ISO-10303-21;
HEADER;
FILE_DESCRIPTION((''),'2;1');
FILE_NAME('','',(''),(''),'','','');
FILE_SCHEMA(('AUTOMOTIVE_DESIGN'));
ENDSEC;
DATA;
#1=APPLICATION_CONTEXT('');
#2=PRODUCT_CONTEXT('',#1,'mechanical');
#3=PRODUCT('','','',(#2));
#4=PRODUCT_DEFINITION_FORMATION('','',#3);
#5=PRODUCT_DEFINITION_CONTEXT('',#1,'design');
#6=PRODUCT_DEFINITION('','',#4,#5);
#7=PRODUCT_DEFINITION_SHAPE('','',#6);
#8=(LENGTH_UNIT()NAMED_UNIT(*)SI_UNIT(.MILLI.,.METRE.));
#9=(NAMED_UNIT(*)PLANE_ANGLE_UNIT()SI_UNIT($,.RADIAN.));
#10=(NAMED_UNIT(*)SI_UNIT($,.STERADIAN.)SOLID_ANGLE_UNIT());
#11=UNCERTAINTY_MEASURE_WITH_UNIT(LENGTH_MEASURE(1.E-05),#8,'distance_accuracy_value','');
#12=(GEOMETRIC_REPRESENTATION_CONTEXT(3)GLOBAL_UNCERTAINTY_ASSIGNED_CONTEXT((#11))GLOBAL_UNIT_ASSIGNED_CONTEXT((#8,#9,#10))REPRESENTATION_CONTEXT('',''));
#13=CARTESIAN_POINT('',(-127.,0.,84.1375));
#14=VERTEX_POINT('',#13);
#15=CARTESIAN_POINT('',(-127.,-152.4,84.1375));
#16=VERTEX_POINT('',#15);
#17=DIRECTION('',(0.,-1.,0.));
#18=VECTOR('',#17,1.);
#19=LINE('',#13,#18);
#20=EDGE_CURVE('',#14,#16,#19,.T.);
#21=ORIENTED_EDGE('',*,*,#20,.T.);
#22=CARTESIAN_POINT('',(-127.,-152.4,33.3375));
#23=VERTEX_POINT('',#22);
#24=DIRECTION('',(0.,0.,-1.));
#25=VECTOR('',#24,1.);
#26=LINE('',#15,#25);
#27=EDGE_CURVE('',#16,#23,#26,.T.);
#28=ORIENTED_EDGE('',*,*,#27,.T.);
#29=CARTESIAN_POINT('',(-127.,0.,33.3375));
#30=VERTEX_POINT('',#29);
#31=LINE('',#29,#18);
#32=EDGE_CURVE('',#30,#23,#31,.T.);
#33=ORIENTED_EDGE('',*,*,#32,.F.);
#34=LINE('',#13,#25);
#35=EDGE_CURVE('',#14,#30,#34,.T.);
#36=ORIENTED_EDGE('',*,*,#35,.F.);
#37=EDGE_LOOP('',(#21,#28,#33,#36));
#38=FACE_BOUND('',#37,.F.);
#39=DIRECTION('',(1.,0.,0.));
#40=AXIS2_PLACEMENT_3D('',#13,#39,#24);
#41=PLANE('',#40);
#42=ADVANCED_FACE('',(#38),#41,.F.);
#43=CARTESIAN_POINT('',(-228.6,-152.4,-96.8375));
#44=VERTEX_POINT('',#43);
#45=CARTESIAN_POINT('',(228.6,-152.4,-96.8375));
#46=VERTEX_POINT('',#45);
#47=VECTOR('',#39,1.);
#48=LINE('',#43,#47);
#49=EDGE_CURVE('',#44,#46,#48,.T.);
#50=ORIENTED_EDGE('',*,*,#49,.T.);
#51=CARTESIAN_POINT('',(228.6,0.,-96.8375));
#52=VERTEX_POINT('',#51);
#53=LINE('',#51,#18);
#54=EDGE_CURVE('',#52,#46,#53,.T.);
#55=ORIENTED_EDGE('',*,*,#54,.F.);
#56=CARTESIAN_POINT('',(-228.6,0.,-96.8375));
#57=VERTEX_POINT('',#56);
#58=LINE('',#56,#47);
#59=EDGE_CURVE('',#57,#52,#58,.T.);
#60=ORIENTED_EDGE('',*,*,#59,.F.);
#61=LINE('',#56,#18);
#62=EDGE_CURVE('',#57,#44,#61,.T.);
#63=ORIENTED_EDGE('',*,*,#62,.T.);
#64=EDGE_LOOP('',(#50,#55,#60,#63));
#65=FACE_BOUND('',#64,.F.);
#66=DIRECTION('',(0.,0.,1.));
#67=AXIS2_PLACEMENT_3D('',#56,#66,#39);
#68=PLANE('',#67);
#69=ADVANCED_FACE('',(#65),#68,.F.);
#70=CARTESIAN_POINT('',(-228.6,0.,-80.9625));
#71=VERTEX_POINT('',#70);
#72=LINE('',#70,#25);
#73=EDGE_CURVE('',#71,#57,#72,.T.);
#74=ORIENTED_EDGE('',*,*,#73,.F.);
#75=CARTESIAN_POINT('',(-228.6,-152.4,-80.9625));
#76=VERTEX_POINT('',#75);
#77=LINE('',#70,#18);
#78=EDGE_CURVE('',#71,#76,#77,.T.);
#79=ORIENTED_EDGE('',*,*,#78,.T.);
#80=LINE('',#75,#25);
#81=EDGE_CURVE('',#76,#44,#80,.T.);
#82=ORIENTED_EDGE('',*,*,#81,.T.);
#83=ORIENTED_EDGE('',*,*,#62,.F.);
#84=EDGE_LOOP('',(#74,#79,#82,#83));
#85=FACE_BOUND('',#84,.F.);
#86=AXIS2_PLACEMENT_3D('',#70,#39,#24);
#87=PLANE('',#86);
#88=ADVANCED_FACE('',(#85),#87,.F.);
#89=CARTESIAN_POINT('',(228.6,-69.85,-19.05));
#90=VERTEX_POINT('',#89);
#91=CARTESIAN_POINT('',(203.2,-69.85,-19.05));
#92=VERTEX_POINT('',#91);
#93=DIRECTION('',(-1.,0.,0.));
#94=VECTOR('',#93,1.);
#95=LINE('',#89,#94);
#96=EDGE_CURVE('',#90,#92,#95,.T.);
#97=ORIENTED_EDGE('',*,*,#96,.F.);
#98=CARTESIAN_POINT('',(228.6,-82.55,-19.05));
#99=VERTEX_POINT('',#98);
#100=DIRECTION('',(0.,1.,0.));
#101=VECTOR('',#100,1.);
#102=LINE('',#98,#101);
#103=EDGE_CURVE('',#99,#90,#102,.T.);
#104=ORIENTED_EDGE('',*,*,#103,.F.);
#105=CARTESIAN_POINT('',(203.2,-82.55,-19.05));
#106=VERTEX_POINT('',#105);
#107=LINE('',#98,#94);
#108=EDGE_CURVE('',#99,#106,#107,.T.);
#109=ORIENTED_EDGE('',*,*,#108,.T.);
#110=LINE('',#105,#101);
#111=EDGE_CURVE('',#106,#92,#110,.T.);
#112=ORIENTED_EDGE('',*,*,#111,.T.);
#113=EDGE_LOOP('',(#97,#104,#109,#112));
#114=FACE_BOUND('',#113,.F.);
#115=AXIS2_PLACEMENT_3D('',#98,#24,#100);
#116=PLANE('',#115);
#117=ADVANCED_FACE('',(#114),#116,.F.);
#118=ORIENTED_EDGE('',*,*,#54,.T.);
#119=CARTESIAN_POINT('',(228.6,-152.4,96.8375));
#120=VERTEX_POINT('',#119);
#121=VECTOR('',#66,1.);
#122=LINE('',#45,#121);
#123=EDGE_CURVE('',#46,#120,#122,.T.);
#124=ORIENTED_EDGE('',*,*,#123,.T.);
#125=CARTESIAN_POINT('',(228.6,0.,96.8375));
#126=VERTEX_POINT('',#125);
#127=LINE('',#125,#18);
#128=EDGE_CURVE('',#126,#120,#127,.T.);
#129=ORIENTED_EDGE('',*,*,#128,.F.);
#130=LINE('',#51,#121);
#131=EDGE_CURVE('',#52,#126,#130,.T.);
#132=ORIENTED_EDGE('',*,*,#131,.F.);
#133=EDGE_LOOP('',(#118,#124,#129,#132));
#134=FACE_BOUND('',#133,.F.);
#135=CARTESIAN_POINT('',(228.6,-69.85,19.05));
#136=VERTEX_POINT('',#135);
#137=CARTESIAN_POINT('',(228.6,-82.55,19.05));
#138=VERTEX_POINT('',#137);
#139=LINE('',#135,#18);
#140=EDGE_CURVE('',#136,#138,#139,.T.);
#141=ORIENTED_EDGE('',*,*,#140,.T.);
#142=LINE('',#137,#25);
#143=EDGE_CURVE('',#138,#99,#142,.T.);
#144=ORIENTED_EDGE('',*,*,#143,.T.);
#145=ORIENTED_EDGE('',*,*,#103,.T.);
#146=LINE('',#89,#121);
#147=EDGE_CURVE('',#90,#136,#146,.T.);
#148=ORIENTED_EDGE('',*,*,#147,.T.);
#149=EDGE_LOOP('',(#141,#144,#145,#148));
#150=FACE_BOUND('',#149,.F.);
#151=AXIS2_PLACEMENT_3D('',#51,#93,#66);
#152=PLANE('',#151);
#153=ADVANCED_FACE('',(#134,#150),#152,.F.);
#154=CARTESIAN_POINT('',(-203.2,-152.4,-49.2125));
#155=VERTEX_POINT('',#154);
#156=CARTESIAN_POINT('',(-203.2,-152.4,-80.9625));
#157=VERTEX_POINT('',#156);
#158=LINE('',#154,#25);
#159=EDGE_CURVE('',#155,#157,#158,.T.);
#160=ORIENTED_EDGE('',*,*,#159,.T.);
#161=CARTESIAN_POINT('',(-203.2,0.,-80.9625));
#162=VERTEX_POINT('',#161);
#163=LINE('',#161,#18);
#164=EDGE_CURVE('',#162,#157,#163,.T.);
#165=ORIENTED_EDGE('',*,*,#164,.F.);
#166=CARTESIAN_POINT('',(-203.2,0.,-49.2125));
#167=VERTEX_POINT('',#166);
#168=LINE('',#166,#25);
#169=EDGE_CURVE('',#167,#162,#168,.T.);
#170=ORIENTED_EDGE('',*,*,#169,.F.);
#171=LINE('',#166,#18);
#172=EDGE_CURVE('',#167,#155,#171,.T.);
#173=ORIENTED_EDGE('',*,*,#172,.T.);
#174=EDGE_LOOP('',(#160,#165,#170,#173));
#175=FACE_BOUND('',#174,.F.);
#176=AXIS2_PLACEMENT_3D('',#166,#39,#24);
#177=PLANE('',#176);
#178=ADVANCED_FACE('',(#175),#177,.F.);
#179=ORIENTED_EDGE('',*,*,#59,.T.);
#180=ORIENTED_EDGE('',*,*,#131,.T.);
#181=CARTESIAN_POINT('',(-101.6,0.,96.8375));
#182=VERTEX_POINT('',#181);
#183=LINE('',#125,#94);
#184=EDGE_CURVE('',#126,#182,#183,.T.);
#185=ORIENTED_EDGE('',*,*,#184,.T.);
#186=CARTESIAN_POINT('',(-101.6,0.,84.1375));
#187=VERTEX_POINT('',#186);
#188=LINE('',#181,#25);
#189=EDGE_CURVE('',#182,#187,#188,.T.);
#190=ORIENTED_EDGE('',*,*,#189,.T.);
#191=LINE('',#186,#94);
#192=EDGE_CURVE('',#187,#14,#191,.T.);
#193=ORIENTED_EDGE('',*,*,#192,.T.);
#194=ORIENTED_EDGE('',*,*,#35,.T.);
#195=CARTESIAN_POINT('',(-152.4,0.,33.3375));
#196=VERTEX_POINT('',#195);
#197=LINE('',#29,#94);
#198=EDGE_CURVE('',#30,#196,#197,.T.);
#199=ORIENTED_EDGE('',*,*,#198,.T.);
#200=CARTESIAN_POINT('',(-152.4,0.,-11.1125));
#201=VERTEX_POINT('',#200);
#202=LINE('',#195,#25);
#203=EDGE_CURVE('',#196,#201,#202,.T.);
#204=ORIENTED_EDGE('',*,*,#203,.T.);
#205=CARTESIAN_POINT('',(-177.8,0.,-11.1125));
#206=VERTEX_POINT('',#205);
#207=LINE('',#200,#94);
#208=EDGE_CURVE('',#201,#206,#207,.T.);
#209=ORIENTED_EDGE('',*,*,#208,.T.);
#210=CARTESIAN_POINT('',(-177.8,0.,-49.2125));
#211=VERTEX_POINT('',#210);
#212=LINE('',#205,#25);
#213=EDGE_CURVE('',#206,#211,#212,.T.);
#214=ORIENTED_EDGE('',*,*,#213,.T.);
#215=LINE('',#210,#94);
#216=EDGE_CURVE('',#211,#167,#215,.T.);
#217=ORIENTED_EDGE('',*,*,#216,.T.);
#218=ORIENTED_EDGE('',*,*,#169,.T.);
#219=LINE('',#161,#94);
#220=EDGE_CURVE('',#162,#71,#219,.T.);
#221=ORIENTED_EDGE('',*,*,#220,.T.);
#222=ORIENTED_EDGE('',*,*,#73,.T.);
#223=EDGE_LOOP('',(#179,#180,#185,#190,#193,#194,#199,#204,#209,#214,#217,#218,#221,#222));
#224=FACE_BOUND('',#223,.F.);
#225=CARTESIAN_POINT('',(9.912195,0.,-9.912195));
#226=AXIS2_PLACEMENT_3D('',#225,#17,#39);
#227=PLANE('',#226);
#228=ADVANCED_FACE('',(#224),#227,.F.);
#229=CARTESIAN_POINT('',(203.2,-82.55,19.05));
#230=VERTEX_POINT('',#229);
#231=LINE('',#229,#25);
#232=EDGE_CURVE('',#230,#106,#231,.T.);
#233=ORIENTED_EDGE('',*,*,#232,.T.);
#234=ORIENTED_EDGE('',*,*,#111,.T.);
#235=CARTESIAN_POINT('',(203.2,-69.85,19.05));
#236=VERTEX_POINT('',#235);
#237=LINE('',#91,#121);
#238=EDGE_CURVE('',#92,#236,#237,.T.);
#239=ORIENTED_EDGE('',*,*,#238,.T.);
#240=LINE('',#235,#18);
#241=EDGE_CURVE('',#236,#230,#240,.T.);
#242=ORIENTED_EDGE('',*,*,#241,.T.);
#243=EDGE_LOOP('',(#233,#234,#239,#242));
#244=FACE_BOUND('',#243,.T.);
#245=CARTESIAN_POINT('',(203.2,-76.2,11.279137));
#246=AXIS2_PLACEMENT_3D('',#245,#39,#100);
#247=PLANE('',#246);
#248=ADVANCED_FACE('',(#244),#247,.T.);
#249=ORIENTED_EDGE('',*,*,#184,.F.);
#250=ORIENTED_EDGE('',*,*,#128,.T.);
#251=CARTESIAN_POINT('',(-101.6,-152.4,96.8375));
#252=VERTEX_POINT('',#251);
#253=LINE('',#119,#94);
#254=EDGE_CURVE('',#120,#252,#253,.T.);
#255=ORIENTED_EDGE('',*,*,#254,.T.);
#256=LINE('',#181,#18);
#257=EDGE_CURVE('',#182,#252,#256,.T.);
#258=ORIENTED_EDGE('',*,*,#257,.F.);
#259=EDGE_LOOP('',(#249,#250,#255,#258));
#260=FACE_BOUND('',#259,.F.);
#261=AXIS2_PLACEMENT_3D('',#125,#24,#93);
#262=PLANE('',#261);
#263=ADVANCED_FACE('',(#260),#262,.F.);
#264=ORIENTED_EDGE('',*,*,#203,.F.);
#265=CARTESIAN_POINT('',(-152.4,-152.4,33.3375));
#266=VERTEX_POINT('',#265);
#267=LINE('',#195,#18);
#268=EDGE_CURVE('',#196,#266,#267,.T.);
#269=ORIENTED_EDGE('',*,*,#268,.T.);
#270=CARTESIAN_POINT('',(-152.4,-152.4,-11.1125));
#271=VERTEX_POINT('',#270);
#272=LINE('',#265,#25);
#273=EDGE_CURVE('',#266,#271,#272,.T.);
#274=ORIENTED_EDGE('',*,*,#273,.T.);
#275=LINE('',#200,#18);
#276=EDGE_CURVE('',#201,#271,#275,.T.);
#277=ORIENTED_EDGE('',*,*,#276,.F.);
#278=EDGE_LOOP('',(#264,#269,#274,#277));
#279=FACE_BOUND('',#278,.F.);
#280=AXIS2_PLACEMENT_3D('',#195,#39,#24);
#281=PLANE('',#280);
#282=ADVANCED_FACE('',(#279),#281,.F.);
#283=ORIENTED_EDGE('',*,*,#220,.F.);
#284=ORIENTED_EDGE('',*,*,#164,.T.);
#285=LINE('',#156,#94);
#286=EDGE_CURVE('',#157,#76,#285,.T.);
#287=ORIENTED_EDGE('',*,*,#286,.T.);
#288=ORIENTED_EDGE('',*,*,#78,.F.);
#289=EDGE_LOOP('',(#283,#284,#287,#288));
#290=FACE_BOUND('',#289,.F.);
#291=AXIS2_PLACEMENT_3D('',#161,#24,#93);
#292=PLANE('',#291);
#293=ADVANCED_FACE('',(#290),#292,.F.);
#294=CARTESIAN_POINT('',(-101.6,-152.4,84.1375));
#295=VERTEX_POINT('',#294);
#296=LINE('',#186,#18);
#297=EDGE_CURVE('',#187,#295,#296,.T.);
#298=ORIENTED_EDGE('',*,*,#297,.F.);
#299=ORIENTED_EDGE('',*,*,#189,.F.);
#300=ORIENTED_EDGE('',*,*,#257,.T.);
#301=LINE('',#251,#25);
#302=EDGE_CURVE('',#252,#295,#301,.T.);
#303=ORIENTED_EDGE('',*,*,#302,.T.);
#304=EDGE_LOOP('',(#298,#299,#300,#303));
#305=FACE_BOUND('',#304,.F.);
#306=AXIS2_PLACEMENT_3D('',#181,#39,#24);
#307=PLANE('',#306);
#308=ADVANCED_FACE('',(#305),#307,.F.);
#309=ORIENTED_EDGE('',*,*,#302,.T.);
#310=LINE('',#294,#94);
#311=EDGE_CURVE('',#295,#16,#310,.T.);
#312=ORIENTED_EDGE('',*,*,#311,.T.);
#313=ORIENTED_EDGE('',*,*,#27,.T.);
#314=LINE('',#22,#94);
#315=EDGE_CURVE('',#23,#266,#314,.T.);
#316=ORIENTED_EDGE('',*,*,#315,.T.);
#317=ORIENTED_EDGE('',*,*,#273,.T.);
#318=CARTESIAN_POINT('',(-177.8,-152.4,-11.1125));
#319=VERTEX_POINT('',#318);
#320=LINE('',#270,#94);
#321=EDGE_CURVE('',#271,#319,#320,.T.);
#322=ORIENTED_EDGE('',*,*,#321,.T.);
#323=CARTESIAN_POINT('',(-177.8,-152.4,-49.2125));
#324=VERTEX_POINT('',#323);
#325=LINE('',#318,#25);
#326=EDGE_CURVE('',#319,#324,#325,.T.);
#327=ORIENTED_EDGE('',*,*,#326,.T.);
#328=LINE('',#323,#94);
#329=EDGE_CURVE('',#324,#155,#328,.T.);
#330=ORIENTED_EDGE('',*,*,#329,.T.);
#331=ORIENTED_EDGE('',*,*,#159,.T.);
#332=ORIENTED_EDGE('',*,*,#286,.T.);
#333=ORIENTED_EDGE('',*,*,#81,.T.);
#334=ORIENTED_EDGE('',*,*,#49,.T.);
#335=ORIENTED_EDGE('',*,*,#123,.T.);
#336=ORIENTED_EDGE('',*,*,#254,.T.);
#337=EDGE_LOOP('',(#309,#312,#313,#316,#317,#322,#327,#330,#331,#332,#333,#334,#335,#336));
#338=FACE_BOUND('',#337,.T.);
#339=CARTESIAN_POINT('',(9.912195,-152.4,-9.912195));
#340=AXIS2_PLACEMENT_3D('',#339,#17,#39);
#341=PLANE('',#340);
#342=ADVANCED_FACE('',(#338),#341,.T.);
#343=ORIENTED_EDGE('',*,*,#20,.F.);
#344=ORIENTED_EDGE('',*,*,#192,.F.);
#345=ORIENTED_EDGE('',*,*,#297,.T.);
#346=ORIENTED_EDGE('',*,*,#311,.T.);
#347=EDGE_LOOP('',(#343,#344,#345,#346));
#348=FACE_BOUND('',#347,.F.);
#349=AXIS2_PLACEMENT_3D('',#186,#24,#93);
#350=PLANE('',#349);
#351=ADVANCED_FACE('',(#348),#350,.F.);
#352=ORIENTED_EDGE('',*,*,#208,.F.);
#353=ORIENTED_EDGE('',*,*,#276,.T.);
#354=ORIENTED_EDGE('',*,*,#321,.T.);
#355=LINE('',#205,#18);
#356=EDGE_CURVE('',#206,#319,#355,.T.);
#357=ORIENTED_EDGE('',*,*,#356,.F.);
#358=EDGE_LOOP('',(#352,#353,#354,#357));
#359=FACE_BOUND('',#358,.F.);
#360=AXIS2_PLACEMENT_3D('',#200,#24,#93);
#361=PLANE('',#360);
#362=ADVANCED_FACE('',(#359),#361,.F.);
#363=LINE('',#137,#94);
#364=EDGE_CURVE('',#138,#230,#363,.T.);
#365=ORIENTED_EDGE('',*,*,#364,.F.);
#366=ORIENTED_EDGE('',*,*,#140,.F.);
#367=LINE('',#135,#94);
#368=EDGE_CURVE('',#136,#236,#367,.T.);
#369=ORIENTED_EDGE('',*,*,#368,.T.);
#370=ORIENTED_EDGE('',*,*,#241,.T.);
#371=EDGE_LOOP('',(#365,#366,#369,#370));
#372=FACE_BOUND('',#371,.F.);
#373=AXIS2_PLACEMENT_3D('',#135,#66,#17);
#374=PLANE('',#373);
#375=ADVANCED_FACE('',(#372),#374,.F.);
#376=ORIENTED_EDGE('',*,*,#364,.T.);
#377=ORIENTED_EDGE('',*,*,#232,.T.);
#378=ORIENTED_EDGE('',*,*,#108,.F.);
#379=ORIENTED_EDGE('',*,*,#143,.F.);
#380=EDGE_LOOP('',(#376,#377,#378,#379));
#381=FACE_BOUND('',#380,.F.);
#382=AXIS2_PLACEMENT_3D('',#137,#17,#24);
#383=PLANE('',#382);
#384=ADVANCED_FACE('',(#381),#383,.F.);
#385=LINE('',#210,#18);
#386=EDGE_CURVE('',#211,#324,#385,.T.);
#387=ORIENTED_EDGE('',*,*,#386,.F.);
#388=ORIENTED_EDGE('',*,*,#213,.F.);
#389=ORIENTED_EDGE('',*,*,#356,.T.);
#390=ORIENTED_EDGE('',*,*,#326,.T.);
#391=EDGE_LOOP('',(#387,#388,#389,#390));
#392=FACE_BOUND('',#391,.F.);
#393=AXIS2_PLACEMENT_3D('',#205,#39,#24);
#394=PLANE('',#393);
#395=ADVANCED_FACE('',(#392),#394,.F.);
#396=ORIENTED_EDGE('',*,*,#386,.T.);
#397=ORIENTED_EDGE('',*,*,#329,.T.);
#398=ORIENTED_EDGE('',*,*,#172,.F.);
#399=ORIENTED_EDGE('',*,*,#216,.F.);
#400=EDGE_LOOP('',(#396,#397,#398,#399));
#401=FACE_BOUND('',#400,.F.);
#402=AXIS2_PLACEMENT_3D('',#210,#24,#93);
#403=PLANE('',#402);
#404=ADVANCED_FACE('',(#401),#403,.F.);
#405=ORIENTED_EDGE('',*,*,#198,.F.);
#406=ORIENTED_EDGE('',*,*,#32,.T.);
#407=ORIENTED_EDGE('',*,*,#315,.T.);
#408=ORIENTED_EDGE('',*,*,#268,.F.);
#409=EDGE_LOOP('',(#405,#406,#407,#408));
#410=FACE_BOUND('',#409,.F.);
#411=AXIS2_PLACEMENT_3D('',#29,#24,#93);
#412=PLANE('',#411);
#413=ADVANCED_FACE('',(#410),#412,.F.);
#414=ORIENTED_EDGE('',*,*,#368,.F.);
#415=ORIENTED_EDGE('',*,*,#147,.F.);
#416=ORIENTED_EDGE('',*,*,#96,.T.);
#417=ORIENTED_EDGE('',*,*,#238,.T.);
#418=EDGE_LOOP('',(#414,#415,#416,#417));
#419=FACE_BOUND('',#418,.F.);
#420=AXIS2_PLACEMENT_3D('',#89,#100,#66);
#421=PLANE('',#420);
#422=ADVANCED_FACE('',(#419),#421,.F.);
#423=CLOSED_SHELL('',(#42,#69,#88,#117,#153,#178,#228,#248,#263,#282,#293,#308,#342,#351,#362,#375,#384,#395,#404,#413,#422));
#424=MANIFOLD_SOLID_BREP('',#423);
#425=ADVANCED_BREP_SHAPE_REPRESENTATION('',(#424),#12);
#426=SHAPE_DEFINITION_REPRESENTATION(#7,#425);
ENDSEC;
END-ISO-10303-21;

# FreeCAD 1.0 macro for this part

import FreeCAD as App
import Part
import Sketcher

V = App.Vector
Q = App.Units.Quantity

doc = App.newDocument("Part")
body = doc.addObject("PartDesign::Body", "Body")

sketch1 = doc.addObject("Sketcher::SketchObject", "Sketch")
body.addObject(sketch1)
sketch1.AttachmentSupport = (doc.XZ_Plane, [""])
sketch1.MapMode = "FlatFace"
sketch1.addGeometry([
    Part.LineSegment(V(229, -97, 0), V(229, 97, 0)),
    Part.LineSegment(V(229, 97, 0), V(-102, 97, 0)),
    Part.LineSegment(V(-102, 97, 0), V(-102, 84, 0)),
    Part.LineSegment(V(-102, 84, 0), V(-127, 84, 0)),
    Part.LineSegment(V(-127, 84, 0), V(-127, 33, 0)),
    Part.LineSegment(V(-127, 33, 0), V(-152, 33, 0)),
    Part.LineSegment(V(-152, 33, 0), V(-152, -11, 0)),
    Part.LineSegment(V(-152, -11, 0), V(-178, -11, 0)),
    Part.LineSegment(V(-178, -11, 0), V(-178, -49, 0)),
    Part.LineSegment(V(-178, -49, 0), V(-203, -49, 0)),
    Part.LineSegment(V(-203, -49, 0), V(-203, -81, 0)),
    Part.LineSegment(V(-203, -81, 0), V(-229, -81, 0)),
    Part.LineSegment(V(-229, -81, 0), V(-229, -97, 0)),
    Part.LineSegment(V(-229, -97, 0), V(229, -97, 0)),
], False)
sketch1.addConstraint([
    Sketcher.Constraint("Coincident", 0, 2, 1, 1),
    Sketcher.Constraint("Coincident", 1, 2, 2, 1),
    Sketcher.Constraint("Coincident", 2, 2, 3, 1),
    Sketcher.Constraint("Coincident", 3, 2, 4, 1),
    Sketcher.Constraint("Coincident", 4, 2, 5, 1),
    Sketcher.Constraint("Coincident", 5, 2, 6, 1),
    Sketcher.Constraint("Coincident", 6, 2, 7, 1),
    Sketcher.Constraint("Coincident", 7, 2, 8, 1),
    Sketcher.Constraint("Coincident", 8, 2, 9, 1),
    Sketcher.Constraint("Coincident", 9, 2, 10, 1),
    Sketcher.Constraint("Coincident", 10, 2, 11, 1),
    Sketcher.Constraint("Coincident", 11, 2, 12, 1),
    Sketcher.Constraint("Coincident", 12, 2, 13, 1),
    Sketcher.Constraint("Coincident", 13, 2, 0, 1),
    Sketcher.Constraint("Vertical", 0),
    Sketcher.Constraint("Horizontal", 1),
    Sketcher.Constraint("Vertical", 2),
    Sketcher.Constraint("Horizontal", 3),
    Sketcher.Constraint("Vertical", 4),
    Sketcher.Constraint("Horizontal", 5),
    Sketcher.Constraint("Vertical", 6),
    Sketcher.Constraint("Horizontal", 7),
    Sketcher.Constraint("Vertical", 8),
    Sketcher.Constraint("Horizontal", 9),
    Sketcher.Constraint("Vertical", 10),
    Sketcher.Constraint("Horizontal", 11),
    Sketcher.Constraint("Vertical", 12),
    Sketcher.Constraint("Horizontal", 13),
    Sketcher.Constraint("Symmetric", 0, 2, 12, 2, -1, 1),
    Sketcher.Constraint("Equal", 3, 5),
    Sketcher.Constraint("Equal", 5, 7),
    Sketcher.Constraint("Equal", 7, 9),
    Sketcher.Constraint("Equal", 9, 11),
    Sketcher.Constraint("DistanceX", 1, 2, 1, 1, Q("13 in")),
    Sketcher.Constraint("DistanceX", 3, 2, 3, 1, Q("1 in")),
    Sketcher.Constraint("DistanceY", 4, 2, 4, 1, Q("2 in")),
    Sketcher.Constraint("DistanceY", 2, 2, 2, 1, Q("0.5 in")),
    Sketcher.Constraint("DistanceY", 8, 2, 8, 1, Q("1.5 in")),
    Sketcher.Constraint("DistanceY", 6, 2, 6, 1, Q("1.75 in")),
    Sketcher.Constraint("DistanceY", 10, 2, 10, 1, Q("1.25 in")),
    Sketcher.Constraint("DistanceY", 0, 1, 0, 2, Q("7.625 in")),
])
pad1 = doc.addObject("PartDesign::Pad", "Pad")
body.addObject(pad1)
pad1.Profile = sketch1
pad1.Length = Q("6 in")

sketch2 = doc.addObject("Sketcher::SketchObject", "Sketch001")
body.addObject(sketch2)
sketch2.AttachmentSupport = (doc.YZ_Plane, [""])
sketch2.MapMode = "FlatFace"
sketch2.AttachmentOffset = App.Placement(V(0, 0, 9 * 25.4), App.Rotation())
sketch2.addGeometry([
    Part.LineSegment(V(-83, 19, 0), V(-83, -19, 0)),
    Part.LineSegment(V(-83, -19, 0), V(-70, -19, 0)),
    Part.LineSegment(V(-70, -19, 0), V(-70, 19, 0)),
    Part.LineSegment(V(-70, 19, 0), V(-83, 19, 0)),
], False)
sketch2.addConstraint([
    Sketcher.Constraint("Coincident", 0, 2, 1, 1),
    Sketcher.Constraint("Coincident", 1, 2, 2, 1),
    Sketcher.Constraint("Coincident", 2, 2, 3, 1),
    Sketcher.Constraint("Coincident", 3, 2, 0, 1),
    Sketcher.Constraint("Vertical", 0),
    Sketcher.Constraint("Horizontal", 1),
    Sketcher.Constraint("Vertical", 2),
    Sketcher.Constraint("Horizontal", 3),
    Sketcher.Constraint("DistanceX", 1, 1, 1, 2, Q("0.5 in")),
    Sketcher.Constraint("DistanceY", 0, 2, 0, 1, Q("1.5 in")),
    Sketcher.Constraint("DistanceX", 0, 2, -1, 1, Q("3.25 in")),
    Sketcher.Constraint("DistanceY", 0, 2, -1, 1, Q("0.75 in")),
])
pocket1 = doc.addObject("PartDesign::Pocket", "Pocket")
body.addObject(pocket1)
pocket1.Profile = sketch2
pocket1.Length = Q("1 in")

doc.recompute()
